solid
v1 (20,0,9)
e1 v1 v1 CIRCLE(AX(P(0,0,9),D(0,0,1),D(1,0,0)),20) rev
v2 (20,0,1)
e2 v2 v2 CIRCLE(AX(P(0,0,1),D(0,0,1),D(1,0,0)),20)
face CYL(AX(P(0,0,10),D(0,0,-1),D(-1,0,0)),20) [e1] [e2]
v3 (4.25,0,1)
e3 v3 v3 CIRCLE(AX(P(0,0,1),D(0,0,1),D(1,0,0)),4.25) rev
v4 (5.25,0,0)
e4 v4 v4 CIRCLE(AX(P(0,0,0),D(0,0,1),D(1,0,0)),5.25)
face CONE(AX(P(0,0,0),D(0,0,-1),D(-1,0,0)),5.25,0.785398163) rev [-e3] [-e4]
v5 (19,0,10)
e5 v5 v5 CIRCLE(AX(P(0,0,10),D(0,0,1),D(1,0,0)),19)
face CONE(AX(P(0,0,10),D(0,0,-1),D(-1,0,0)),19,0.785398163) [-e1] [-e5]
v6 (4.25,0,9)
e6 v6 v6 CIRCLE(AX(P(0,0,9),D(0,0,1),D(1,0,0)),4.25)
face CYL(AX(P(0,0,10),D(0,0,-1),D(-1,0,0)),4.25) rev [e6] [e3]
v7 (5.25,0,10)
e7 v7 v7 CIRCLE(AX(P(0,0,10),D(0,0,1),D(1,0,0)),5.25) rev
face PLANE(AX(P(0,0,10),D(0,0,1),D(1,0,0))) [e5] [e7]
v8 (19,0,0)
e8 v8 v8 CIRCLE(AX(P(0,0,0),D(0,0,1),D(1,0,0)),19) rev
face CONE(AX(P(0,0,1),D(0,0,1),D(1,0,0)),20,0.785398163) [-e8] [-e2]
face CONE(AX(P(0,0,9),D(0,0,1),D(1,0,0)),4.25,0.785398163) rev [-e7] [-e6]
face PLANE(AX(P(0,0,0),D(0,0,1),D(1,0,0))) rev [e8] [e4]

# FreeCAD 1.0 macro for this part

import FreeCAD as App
import Part
import Sketcher
Q = App.Units.Quantity


def edges_at(feature, points):
    """Names of the edges that pass closest to the given points."""
    edges = feature.Shape.Edges
    near = lambda p: min(range(len(edges)), key=lambda i: edges[i].distToShape(Part.Vertex(*p))[0])
    return sorted({f"Edge{near(p) + 1}" for p in points})

doc = App.newDocument("Part")
body = doc.addObject("PartDesign::Body", "Body")

# Sketch on XY plane
sketch1 = doc.addObject("Sketcher::SketchObject", "Sketch")
body.addObject(sketch1)
sketch1.AttachmentSupport = (doc.XY_Plane, [""])
sketch1.MapMode = "FlatFace"
sketch1.addGeometry(Part.Circle(App.Vector(0, 0, 0), App.Vector(0, 0, 1), 20), False)
sketch1.addGeometry(Part.Circle(App.Vector(0, 0, 0), App.Vector(0, 0, 1), 4.25), False)
sketch1.addConstraint(Sketcher.Constraint("Coincident", 0, 3, -1, 1))
sketch1.addConstraint(Sketcher.Constraint("Coincident", 1, 3, -1, 1))
sketch1.addConstraint(Sketcher.Constraint("Diameter", 0, Q("40 mm")))
sketch1.addConstraint(Sketcher.Constraint("Diameter", 1, Q("8.5 mm")))
pad1 = doc.addObject("PartDesign::Pad", "Pad")
body.addObject(pad1)
pad1.Profile = sketch1
pad1.Length = 10
doc.recompute()

chamfer = doc.addObject("PartDesign::Chamfer", "Chamfer")
body.addObject(chamfer)
chamfer.Base = (pad1, edges_at(pad1, [
    (-20, 0, 0),
    (-20, 0, 10),
    (-4.25, 0, 0),
    (-4.25, 0, 10),
]))
chamfer.Size = 1

doc.recompute()
